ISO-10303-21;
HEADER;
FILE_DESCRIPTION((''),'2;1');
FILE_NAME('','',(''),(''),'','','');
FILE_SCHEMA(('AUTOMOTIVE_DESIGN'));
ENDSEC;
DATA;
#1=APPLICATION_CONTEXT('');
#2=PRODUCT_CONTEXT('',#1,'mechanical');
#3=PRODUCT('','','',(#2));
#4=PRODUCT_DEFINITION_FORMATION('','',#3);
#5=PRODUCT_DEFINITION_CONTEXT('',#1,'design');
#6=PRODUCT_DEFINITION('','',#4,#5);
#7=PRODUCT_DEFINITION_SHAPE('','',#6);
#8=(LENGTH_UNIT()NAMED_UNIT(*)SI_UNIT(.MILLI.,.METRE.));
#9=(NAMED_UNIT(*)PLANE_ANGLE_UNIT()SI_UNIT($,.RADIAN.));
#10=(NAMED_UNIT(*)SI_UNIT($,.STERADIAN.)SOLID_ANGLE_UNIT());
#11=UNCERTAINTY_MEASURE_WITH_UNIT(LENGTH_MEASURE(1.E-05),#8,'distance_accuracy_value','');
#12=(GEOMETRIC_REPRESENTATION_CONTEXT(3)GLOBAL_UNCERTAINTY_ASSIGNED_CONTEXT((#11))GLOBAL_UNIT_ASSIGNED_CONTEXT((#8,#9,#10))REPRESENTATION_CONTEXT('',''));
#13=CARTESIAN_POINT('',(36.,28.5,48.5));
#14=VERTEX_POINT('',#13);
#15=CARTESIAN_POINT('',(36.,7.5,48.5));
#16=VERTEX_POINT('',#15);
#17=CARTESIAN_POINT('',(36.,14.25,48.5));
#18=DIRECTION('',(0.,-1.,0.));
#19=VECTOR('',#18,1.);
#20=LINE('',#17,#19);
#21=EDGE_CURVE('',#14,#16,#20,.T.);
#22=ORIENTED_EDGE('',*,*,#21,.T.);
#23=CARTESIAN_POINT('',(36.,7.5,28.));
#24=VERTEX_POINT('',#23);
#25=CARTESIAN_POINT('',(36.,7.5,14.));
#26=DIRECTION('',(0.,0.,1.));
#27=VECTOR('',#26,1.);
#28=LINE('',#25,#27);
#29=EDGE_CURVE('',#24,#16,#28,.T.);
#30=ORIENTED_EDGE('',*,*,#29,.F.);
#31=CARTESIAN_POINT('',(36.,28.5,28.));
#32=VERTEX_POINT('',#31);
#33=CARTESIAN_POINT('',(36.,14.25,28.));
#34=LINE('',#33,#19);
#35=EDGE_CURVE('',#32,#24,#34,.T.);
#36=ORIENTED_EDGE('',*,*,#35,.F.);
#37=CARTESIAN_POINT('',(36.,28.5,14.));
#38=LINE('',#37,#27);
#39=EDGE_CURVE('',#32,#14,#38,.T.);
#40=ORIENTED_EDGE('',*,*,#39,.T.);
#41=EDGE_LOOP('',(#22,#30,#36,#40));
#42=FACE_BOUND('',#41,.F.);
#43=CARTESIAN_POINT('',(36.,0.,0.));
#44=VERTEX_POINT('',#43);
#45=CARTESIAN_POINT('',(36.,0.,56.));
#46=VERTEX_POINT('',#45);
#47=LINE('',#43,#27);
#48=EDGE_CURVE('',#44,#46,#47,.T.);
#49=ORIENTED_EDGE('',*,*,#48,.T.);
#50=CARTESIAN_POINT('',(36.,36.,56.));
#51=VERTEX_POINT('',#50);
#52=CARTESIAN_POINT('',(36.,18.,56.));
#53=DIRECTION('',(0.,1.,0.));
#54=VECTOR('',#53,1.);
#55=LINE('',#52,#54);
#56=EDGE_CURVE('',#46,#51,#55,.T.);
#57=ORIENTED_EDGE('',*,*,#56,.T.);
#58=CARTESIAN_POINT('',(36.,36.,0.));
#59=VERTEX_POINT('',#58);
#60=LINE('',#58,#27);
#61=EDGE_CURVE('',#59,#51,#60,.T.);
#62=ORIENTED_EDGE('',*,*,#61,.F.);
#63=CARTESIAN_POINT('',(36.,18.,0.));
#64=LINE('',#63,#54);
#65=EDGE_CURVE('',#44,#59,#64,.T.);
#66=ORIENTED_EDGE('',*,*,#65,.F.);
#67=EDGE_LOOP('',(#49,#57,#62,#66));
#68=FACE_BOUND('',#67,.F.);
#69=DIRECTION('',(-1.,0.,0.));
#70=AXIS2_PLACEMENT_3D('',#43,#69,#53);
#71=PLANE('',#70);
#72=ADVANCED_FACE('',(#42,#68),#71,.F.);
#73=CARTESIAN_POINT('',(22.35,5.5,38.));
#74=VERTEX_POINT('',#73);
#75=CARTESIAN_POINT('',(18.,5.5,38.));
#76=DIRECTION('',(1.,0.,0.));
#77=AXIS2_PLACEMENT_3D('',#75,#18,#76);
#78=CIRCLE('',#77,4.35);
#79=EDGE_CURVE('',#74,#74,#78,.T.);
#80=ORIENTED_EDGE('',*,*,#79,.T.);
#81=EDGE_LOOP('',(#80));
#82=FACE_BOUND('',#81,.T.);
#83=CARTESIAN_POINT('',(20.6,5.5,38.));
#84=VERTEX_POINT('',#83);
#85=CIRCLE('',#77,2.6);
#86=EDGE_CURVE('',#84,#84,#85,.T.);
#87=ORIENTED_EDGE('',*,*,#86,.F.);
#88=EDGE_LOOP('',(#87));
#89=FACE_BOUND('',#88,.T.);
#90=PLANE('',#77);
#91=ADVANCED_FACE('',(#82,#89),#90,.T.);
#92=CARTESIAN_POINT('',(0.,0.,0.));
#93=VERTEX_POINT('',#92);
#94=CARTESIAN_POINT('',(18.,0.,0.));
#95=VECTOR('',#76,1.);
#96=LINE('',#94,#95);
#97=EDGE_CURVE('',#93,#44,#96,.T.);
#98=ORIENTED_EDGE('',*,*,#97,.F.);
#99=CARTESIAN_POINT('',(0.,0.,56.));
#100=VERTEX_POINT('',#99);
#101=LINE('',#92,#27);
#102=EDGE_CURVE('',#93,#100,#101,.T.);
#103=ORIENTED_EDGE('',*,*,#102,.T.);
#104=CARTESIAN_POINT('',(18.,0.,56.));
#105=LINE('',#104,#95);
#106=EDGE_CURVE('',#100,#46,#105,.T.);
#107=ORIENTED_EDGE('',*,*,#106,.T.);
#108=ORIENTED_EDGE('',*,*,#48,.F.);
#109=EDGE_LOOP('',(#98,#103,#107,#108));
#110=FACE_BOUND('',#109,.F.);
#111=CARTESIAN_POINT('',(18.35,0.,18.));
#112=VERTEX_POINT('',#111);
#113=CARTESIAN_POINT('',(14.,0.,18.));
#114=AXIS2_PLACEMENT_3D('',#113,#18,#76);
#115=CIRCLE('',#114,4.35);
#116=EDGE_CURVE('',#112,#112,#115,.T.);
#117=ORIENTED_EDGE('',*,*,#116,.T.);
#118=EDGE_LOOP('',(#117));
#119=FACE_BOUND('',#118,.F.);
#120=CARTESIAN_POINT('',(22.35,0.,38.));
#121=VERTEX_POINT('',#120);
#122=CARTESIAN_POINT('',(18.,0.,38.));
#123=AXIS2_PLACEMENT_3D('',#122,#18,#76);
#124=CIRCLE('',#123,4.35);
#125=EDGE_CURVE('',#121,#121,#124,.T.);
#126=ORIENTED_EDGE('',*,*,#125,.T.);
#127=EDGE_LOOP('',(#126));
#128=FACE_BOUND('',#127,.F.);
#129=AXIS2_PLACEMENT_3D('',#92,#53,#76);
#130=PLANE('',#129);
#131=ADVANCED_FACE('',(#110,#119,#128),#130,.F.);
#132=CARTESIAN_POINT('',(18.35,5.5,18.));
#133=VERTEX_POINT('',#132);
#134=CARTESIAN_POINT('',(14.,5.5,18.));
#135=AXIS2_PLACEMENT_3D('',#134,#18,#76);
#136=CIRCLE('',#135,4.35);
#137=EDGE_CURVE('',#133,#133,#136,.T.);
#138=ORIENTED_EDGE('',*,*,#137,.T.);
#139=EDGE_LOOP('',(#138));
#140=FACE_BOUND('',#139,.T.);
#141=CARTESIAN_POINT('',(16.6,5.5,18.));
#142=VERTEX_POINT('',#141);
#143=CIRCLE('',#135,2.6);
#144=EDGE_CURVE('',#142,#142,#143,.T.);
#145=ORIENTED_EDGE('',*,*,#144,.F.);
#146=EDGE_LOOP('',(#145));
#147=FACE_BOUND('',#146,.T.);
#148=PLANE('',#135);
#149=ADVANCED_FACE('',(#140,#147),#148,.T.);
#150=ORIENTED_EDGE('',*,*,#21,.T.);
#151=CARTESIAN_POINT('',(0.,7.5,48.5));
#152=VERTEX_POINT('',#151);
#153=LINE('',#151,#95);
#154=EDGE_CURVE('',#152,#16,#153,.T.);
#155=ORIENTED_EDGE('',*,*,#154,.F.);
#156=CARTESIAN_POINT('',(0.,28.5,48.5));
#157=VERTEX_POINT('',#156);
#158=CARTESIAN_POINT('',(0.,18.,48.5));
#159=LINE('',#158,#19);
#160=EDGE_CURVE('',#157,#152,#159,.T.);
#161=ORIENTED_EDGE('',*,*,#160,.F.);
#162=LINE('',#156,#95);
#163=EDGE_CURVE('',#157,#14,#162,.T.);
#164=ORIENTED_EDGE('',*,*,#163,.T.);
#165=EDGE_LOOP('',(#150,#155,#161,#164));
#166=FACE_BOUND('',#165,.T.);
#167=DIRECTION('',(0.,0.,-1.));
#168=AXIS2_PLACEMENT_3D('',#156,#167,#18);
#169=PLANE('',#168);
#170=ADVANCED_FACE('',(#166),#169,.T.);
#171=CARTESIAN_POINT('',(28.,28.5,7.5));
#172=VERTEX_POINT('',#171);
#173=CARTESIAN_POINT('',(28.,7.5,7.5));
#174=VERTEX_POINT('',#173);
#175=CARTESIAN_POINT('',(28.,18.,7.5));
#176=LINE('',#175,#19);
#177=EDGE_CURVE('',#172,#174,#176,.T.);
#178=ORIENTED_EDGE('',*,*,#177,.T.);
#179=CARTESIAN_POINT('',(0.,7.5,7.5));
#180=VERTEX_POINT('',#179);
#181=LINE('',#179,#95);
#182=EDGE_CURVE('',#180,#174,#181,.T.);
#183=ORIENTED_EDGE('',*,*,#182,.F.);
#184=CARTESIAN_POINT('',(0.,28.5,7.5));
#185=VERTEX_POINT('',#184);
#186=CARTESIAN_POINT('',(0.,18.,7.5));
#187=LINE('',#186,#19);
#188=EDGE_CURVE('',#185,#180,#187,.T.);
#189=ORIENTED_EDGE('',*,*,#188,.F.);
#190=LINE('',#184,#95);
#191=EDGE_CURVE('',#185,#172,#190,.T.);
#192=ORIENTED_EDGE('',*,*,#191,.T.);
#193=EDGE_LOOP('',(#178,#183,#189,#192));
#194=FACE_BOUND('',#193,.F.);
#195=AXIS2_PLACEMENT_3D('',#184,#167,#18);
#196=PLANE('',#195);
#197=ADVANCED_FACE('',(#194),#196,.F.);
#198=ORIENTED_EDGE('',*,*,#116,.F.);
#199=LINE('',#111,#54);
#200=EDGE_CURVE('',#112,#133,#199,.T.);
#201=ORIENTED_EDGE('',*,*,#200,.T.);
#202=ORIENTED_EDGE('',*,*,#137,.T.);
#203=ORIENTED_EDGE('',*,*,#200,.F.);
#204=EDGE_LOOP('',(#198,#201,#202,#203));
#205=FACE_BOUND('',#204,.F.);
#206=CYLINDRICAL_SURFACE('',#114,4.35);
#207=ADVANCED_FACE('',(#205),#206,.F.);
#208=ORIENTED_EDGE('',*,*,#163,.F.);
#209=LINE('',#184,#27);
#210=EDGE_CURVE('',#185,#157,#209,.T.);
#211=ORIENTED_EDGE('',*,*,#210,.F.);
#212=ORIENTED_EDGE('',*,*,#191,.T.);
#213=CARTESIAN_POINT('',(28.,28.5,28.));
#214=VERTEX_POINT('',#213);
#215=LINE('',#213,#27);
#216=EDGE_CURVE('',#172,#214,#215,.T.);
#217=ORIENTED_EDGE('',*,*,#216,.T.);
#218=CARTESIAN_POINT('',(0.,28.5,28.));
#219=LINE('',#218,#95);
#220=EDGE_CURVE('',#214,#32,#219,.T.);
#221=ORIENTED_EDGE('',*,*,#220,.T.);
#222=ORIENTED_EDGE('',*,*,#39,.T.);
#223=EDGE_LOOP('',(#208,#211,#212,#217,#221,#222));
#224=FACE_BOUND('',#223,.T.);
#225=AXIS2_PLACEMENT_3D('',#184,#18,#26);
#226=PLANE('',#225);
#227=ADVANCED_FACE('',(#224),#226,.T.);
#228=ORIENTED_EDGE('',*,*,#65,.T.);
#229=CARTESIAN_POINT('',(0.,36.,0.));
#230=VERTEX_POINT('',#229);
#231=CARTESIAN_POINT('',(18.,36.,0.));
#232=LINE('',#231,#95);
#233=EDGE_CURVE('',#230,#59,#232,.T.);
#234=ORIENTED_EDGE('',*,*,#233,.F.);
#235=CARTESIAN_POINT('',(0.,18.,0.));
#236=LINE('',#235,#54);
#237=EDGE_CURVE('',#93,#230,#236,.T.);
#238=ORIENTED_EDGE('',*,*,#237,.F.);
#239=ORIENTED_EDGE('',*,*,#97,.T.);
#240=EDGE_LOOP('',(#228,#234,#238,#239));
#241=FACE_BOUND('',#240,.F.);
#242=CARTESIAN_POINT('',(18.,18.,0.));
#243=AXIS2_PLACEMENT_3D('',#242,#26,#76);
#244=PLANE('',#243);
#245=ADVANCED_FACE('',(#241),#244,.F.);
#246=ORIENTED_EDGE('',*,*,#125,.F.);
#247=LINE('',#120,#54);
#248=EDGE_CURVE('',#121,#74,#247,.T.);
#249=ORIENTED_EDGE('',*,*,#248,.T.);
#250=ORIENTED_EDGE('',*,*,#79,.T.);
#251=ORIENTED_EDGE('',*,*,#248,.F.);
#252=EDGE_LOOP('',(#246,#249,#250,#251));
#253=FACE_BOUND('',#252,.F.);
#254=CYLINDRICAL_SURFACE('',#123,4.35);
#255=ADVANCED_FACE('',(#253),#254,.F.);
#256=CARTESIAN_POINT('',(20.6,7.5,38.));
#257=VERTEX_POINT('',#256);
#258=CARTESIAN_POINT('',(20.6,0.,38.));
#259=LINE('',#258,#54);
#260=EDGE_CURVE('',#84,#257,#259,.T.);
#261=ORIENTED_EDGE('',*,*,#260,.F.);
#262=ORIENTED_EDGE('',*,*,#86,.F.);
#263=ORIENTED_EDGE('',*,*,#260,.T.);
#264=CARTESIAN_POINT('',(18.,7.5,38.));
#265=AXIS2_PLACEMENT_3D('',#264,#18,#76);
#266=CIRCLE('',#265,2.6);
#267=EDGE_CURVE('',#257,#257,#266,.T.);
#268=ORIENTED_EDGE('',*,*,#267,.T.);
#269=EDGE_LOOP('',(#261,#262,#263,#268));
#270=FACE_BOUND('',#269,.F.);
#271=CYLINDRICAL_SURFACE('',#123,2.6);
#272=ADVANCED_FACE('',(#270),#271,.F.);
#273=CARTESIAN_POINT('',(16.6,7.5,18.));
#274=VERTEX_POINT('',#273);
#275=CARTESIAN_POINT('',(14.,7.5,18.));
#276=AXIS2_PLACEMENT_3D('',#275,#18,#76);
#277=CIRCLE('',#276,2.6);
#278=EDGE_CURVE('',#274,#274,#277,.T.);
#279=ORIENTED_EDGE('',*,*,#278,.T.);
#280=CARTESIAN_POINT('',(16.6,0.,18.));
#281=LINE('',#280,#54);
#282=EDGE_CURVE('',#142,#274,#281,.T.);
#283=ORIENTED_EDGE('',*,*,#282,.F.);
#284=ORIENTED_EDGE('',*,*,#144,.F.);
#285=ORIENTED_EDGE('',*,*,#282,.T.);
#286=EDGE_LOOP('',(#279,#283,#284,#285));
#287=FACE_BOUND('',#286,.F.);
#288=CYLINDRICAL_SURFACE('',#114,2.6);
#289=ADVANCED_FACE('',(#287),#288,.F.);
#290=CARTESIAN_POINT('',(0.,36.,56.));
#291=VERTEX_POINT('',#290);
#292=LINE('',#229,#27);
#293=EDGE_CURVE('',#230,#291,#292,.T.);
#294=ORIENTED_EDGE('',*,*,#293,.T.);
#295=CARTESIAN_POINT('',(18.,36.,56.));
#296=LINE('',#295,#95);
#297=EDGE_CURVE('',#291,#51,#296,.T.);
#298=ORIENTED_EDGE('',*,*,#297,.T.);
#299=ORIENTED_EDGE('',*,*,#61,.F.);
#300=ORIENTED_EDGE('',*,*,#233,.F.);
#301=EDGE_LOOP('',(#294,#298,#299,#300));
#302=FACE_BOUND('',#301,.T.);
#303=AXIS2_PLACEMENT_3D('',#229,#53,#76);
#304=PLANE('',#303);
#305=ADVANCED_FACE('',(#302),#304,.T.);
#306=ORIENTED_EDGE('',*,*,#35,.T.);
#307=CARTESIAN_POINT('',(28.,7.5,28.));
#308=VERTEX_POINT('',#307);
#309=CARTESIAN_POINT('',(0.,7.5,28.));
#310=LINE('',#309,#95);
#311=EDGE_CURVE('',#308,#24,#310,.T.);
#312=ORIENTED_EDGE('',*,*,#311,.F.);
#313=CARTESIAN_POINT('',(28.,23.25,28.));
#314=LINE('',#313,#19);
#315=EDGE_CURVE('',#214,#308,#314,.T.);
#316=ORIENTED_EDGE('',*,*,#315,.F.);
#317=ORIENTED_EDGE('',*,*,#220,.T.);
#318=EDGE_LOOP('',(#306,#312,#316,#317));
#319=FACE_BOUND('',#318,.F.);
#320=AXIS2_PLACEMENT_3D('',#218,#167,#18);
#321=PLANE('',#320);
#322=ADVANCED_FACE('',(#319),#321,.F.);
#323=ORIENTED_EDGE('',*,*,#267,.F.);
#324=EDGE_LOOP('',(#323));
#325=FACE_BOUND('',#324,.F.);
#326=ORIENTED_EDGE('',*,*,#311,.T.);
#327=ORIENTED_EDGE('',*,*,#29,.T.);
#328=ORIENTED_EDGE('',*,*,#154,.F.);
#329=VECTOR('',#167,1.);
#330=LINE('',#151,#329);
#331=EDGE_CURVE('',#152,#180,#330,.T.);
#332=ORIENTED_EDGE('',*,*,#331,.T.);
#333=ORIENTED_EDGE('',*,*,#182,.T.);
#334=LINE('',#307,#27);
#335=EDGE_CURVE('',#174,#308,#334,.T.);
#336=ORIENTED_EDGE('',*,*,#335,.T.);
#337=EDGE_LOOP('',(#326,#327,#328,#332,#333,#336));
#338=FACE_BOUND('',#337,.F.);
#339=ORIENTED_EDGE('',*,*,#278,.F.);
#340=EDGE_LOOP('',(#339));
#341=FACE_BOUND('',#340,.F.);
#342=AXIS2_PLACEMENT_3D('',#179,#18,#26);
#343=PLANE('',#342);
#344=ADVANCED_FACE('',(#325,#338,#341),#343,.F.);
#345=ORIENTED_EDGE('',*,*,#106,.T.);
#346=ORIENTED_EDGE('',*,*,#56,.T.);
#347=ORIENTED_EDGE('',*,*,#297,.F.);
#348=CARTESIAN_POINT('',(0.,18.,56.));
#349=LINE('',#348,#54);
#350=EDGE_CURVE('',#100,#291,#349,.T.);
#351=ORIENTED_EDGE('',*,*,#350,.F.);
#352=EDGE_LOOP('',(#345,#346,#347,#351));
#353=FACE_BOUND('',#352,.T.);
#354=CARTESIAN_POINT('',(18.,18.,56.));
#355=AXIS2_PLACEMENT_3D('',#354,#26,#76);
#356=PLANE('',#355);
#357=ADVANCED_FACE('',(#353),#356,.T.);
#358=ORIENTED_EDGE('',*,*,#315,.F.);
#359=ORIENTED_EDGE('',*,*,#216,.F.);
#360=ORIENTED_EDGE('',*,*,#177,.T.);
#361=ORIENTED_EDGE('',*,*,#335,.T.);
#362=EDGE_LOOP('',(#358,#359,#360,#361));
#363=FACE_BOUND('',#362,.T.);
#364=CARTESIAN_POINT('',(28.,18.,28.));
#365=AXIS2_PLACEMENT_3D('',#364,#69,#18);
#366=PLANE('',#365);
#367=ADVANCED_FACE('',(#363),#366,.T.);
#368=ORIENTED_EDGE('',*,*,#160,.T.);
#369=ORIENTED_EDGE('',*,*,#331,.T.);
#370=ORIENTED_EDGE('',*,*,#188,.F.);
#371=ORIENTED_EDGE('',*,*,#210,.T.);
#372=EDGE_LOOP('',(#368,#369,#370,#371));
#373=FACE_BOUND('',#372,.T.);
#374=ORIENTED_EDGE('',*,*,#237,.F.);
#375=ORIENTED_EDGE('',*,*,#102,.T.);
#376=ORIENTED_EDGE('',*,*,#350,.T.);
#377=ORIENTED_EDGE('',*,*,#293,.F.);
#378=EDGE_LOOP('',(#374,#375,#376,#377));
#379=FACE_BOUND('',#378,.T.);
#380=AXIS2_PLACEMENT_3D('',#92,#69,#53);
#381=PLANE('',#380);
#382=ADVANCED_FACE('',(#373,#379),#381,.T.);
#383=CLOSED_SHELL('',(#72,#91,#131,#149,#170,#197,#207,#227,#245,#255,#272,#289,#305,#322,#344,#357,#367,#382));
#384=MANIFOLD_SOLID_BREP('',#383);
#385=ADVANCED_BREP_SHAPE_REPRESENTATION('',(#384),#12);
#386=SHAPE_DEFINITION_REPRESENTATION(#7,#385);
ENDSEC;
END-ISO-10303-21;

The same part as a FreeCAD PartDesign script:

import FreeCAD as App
import Part
import Sketcher

doc = App.newDocument("Part")
body = doc.addObject("PartDesign::Body", "Body")

# Sketch on XY plane
sketch1 = body.newObject("Sketcher::SketchObject", "Sketch")
sketch1.AttachmentSupport = (doc.getObject("XY_Plane"), [""])
sketch1.MapMode = "FlatFace"
sketch1.addGeometry([
    Part.LineSegment(App.Vector(0, 36, 0), App.Vector(0, 0, 0)),
    Part.LineSegment(App.Vector(0, 0, 0), App.Vector(36, 0, 0)),
    Part.LineSegment(App.Vector(36, 0, 0), App.Vector(36, 36, 0)),
    Part.LineSegment(App.Vector(36, 36, 0), App.Vector(0, 36, 0)),
], False)
sketch1.addConstraint([
    Sketcher.Constraint("Coincident", 0, 2, 1, 1),
    Sketcher.Constraint("Coincident", 1, 2, 2, 1),
    Sketcher.Constraint("Coincident", 2, 2, 3, 1),
    Sketcher.Constraint("Coincident", 3, 2, 0, 1),
    Sketcher.Constraint("Vertical", 0),
    Sketcher.Constraint("Horizontal", 1),
    Sketcher.Constraint("Vertical", 2),
    Sketcher.Constraint("Horizontal", 3),
    Sketcher.Constraint("Coincident", 0, 2, -1, 1),
    Sketcher.Constraint("Equal", 3, 0),
    Sketcher.Constraint("DistanceX", 1, 1, 1, 2, 36.0),
])
pad1 = body.newObject("PartDesign::Pad", "Pad")
pad1.Profile = sketch1
pad1.Length = 56

# Sketch on YZ plane
sketch2 = body.newObject("Sketcher::SketchObject", "Sketch001")
sketch2.AttachmentSupport = (doc.getObject("YZ_Plane"), [""])
sketch2.MapMode = "FlatFace"
sketch2.addGeometry([
    Part.LineSegment(App.Vector(28.5, 48.5, 0), App.Vector(28.5, 7.5, 0)),
    Part.LineSegment(App.Vector(28.5, 7.5, 0), App.Vector(7.5, 7.5, 0)),
    Part.LineSegment(App.Vector(7.5, 7.5, 0), App.Vector(7.5, 48.5, 0)),
    Part.LineSegment(App.Vector(7.5, 48.5, 0), App.Vector(28.5, 48.5, 0)),
], False)
sketch2.addConstraint([
    Sketcher.Constraint("Coincident", 0, 2, 1, 1),
    Sketcher.Constraint("Coincident", 1, 2, 2, 1),
    Sketcher.Constraint("Coincident", 2, 2, 3, 1),
    Sketcher.Constraint("Coincident", 3, 2, 0, 1),
    Sketcher.Constraint("Vertical", 0),
    Sketcher.Constraint("Horizontal", 1),
    Sketcher.Constraint("Vertical", 2),
    Sketcher.Constraint("Horizontal", 3),
    Sketcher.Constraint("DistanceX", 1, 2, 1, 1, 21.0),
    Sketcher.Constraint("DistanceY", 0, 2, 0, 1, 41.0),
    Sketcher.Constraint("DistanceX", -1, 1, 0, 2, 28.5),
    Sketcher.Constraint("DistanceY", -1, 1, 0, 2, 7.5),
])
pocket1 = body.newObject("PartDesign::Pocket", "Pocket")
pocket1.Profile = sketch2
pocket1.Length = 28
pocket1.Reversed = True

# Sketch on YZ plane
sketch3 = body.newObject("Sketcher::SketchObject", "Sketch002")
sketch3.AttachmentSupport = (doc.getObject("YZ_Plane"), [""])
sketch3.MapMode = "FlatFace"
sketch3.addGeometry([
    Part.LineSegment(App.Vector(28.5, 48.5, 0), App.Vector(28.5, 28, 0)),
    Part.LineSegment(App.Vector(28.5, 28, 0), App.Vector(7.5, 28, 0)),
    Part.LineSegment(App.Vector(7.5, 28, 0), App.Vector(7.5, 48.5, 0)),
    Part.LineSegment(App.Vector(7.5, 48.5, 0), App.Vector(28.5, 48.5, 0)),
], False)
sketch3.addConstraint([
    Sketcher.Constraint("Coincident", 0, 2, 1, 1),
    Sketcher.Constraint("Coincident", 1, 2, 2, 1),
    Sketcher.Constraint("Coincident", 2, 2, 3, 1),
    Sketcher.Constraint("Coincident", 3, 2, 0, 1),
    Sketcher.Constraint("Vertical", 0),
    Sketcher.Constraint("Horizontal", 1),
    Sketcher.Constraint("Vertical", 2),
    Sketcher.Constraint("Horizontal", 3),
    Sketcher.Constraint("DistanceX", 1, 2, 1, 1, 21.0),
    Sketcher.Constraint("DistanceY", 0, 2, 0, 1, 20.5),
    Sketcher.Constraint("DistanceY", -1, 1, 0, 2, 28.0),
    Sketcher.Constraint("DistanceX", -1, 1, 0, 2, 28.5),
])
pocket2 = body.newObject("PartDesign::Pocket", "Pocket001")
pocket2.Profile = sketch3
pocket2.Length = 70
pocket2.Reversed = True

# Sketch on XZ plane
sketch4 = body.newObject("Sketcher::SketchObject", "Sketch003")
sketch4.AttachmentSupport = (doc.getObject("XZ_Plane"), [""])
sketch4.MapMode = "FlatFace"
sketch4.addGeometry([
    Part.Circle(App.Vector(18, 38, 0), App.Vector(0, 0, 1), 2.6),
    Part.Circle(App.Vector(14, 18, 0), App.Vector(0, 0, 1), 2.6),
], False)
sketch4.addConstraint([
    Sketcher.Constraint("Equal", 0, 1),
    Sketcher.Constraint("Diameter", 0, 5.2),
    Sketcher.Constraint("DistanceX", -1, 1, 0, 3, 18.0),
    Sketcher.Constraint("DistanceY", -1, 1, 0, 3, 38.0),
    Sketcher.Constraint("DistanceX", -1, 1, 1, 3, 14.0),
    Sketcher.Constraint("DistanceY", -1, 1, 1, 3, 18.0),
])
pocket3 = body.newObject("PartDesign::Pocket", "Pocket002")
pocket3.Profile = sketch4
pocket3.Length = 20

# Sketch on XZ plane
sketch5 = body.newObject("Sketcher::SketchObject", "Sketch004")
sketch5.AttachmentSupport = (doc.getObject("XZ_Plane"), [""])
sketch5.MapMode = "FlatFace"
sketch5.addGeometry([
    Part.Circle(App.Vector(18, 38, 0), App.Vector(0, 0, 1), 4.35),
    Part.Circle(App.Vector(14, 18, 0), App.Vector(0, 0, 1), 4.35),
], False)
sketch5.addConstraint([
    Sketcher.Constraint("Equal", 0, 1),
    Sketcher.Constraint("Diameter", 0, 8.7),
    Sketcher.Constraint("DistanceX", -1, 1, 0, 3, 18.0),
    Sketcher.Constraint("DistanceY", -1, 1, 0, 3, 38.0),
    Sketcher.Constraint("DistanceX", -1, 1, 1, 3, 14.0),
    Sketcher.Constraint("DistanceY", -1, 1, 1, 3, 18.0),
])
pocket4 = body.newObject("PartDesign::Pocket", "Pocket003")
pocket4.Profile = sketch5
pocket4.Length = 5.5

doc.recompute()
